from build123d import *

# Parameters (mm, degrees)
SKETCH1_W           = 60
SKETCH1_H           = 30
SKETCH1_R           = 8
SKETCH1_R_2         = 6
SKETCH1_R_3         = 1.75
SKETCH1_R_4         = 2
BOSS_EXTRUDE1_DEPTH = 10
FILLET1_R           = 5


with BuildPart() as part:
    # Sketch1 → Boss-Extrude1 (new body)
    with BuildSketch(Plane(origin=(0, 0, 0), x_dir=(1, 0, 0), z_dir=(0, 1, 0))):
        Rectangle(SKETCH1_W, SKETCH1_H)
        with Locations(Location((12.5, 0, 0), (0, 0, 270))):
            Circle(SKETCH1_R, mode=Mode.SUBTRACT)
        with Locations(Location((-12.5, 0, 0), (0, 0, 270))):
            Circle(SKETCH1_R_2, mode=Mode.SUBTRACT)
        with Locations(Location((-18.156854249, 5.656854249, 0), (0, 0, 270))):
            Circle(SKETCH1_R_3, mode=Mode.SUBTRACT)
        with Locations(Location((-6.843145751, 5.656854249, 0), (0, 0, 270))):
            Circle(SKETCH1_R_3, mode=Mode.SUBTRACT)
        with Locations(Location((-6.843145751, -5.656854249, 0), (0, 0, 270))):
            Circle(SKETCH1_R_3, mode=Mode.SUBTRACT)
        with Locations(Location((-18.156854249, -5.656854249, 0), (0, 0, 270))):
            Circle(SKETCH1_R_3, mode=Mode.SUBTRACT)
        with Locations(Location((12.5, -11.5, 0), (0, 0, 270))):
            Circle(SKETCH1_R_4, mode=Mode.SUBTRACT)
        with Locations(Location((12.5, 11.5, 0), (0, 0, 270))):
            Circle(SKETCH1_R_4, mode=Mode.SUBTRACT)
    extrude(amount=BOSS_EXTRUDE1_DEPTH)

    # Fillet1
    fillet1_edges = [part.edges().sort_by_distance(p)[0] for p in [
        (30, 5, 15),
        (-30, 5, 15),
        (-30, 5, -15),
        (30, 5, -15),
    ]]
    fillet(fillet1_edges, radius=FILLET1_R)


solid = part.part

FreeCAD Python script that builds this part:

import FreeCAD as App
import Part
import Sketcher


def edges_at(feature, points):
    """Names of the edges that pass closest to the given points."""
    edges = feature.Shape.Edges
    near = lambda p: min(range(len(edges)), key=lambda i: edges[i].distToShape(Part.Vertex(*p))[0])
    return sorted({f"Edge{near(p) + 1}" for p in points})

doc = App.newDocument("Part")
body = doc.addObject("PartDesign::Body", "Body")

# Sketch on XZ plane
sketch1 = doc.addObject("Sketcher::SketchObject", "Sketch")
body.addObject(sketch1)
sketch1.AttachmentSupport = (doc.XZ_Plane, [""])
sketch1.MapMode = "FlatFace"
sketch1.addGeometry([
    Part.LineSegment(App.Vector(-30, -15, 0), App.Vector(-30, 15, 0)),  # 0
    Part.LineSegment(App.Vector(-30, 15, 0), App.Vector(30, 15, 0)),  # 1
    Part.LineSegment(App.Vector(30, 15, 0), App.Vector(30, -15, 0)),  # 2
    Part.LineSegment(App.Vector(30, -15, 0), App.Vector(-30, -15, 0)),  # 3
    Part.Circle(App.Vector(-18.2, 5.7, 0), App.Vector(0, 0, 1), 1.8),  # 4
    Part.Circle(App.Vector(-6.8, 5.7, 0), App.Vector(0, 0, 1), 1.8),  # 5
    Part.Circle(App.Vector(12.5, 11.5, 0), App.Vector(0, 0, 1), 2),  # 6
    Part.Circle(App.Vector(-12.5, 0, 0), App.Vector(0, 0, 1), 6),  # 7
    Part.Circle(App.Vector(-18.2, -5.7, 0), App.Vector(0, 0, 1), 1.8),  # 8
    Part.Circle(App.Vector(-6.8, -5.7, 0), App.Vector(0, 0, 1), 1.8),  # 9
    Part.Circle(App.Vector(12.5, 0, 0), App.Vector(0, 0, 1), 8),  # 10
    Part.Circle(App.Vector(12.5, -11.5, 0), App.Vector(0, 0, 1), 2),  # 11
], False)
sketch1.addConstraint([
    Sketcher.Constraint("Coincident", 0, 2, 1, 1),
    Sketcher.Constraint("Coincident", 1, 2, 2, 1),
    Sketcher.Constraint("Coincident", 2, 2, 3, 1),
    Sketcher.Constraint("Coincident", 3, 2, 0, 1),
    Sketcher.Constraint("Vertical", 0),
    Sketcher.Constraint("Horizontal", 1),
    Sketcher.Constraint("Vertical", 2),
    Sketcher.Constraint("Horizontal", 3),
    Sketcher.Constraint("Equal", 4, 5),
    Sketcher.Constraint("Equal", 5, 8),
    Sketcher.Constraint("Equal", 8, 9),
    Sketcher.Constraint("Equal", 6, 11),
    Sketcher.Constraint("Symmetric", 7, 3, 10, 3, -1, 1),
    Sketcher.Constraint("Symmetric", 0, 2, 2, 2, -1, 1),
    Sketcher.Constraint("Symmetric", 4, 3, 8, 3, -1),
    Sketcher.Constraint("Symmetric", 5, 3, 9, 3, -1),
    Sketcher.Constraint("Symmetric", 6, 3, 11, 3, -1),
    Sketcher.Constraint("PointOnObject", 7, 3, -1),
    Sketcher.Constraint("Horizontal", 4, 3, 5, 3),
    Sketcher.Constraint("Vertical", 6, 3, 10, 3),
    Sketcher.Constraint("Diameter", 6, 4.0),
    Sketcher.Constraint("Diameter", 7, 12.0),
    Sketcher.Constraint("Diameter", 10, 16.0),
    Sketcher.Constraint("Diameter", 4, 3.5),
    Sketcher.Constraint("DistanceX", 1, 1, 1, 2, 60.0),
    Sketcher.Constraint("DistanceY", 0, 1, 0, 2, 30.0),
    Sketcher.Constraint("DistanceX", 7, 3, 6, 3, 25.0),
    Sketcher.Constraint("DistanceY", 11, 3, 6, 3, 23.0),
    Sketcher.Constraint("DistanceX", 4, 3, 5, 3, 11.313708),
    Sketcher.Constraint("DistanceY", 8, 3, 4, 3, 11.313708),
    Sketcher.Constraint("DistanceX", 4, 3, -1, 1, 18.156854),
])
pad1 = doc.addObject("PartDesign::Pad", "Pad")
body.addObject(pad1)
pad1.Profile = sketch1
pad1.Length = 10
pad1.Reversed = True
doc.recompute()

fillet = doc.addObject("PartDesign::Fillet", "Fillet")
body.addObject(fillet)
fillet.Base = (pad1, edges_at(pad1, [
    (30, 5, 15),
    (-30, 5, 15),
    (-30, 5, -15),
    (30, 5, -15),
]))
fillet.Radius = 5

doc.recompute()
